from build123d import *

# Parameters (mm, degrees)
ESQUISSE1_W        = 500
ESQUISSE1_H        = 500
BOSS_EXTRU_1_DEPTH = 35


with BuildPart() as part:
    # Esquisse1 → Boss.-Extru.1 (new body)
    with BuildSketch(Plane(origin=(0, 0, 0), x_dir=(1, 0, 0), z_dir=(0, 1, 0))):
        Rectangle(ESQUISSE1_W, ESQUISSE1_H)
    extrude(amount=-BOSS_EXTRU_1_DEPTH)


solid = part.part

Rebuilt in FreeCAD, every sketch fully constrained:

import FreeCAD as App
import Part
import Sketcher

doc = App.newDocument("Part")
body = doc.addObject("PartDesign::Body", "Body")

# Sketch on XZ plane
sketch1 = doc.addObject("Sketcher::SketchObject", "Sketch")
body.addObject(sketch1)
sketch1.AttachmentSupport = (doc.XZ_Plane, [""])
sketch1.MapMode = "FlatFace"
sketch1.addGeometry([
    Part.LineSegment(App.Vector(-250, -250, 0), App.Vector(-250, 250, 0)),
    Part.LineSegment(App.Vector(-250, 250, 0), App.Vector(250, 250, 0)),
    Part.LineSegment(App.Vector(250, 250, 0), App.Vector(250, -250, 0)),
    Part.LineSegment(App.Vector(250, -250, 0), App.Vector(-250, -250, 0)),
], False)
sketch1.addConstraint([
    Sketcher.Constraint("Coincident", 0, 2, 1, 1),
    Sketcher.Constraint("Coincident", 1, 2, 2, 1),
    Sketcher.Constraint("Coincident", 2, 2, 3, 1),
    Sketcher.Constraint("Coincident", 3, 2, 0, 1),
    Sketcher.Constraint("Vertical", 0),
    Sketcher.Constraint("Horizontal", 1),
    Sketcher.Constraint("Vertical", 2),
    Sketcher.Constraint("Horizontal", 3),
    Sketcher.Constraint("Symmetric", 0, 2, 2, 2, -1, 1),
    Sketcher.Constraint("Equal", 3, 0),
    Sketcher.Constraint("DistanceX", 1, 1, 1, 2, 500.0),
])
pad1 = doc.addObject("PartDesign::Pad", "Pad")
body.addObject(pad1)
pad1.Profile = sketch1
pad1.Length = 35

doc.recompute()
